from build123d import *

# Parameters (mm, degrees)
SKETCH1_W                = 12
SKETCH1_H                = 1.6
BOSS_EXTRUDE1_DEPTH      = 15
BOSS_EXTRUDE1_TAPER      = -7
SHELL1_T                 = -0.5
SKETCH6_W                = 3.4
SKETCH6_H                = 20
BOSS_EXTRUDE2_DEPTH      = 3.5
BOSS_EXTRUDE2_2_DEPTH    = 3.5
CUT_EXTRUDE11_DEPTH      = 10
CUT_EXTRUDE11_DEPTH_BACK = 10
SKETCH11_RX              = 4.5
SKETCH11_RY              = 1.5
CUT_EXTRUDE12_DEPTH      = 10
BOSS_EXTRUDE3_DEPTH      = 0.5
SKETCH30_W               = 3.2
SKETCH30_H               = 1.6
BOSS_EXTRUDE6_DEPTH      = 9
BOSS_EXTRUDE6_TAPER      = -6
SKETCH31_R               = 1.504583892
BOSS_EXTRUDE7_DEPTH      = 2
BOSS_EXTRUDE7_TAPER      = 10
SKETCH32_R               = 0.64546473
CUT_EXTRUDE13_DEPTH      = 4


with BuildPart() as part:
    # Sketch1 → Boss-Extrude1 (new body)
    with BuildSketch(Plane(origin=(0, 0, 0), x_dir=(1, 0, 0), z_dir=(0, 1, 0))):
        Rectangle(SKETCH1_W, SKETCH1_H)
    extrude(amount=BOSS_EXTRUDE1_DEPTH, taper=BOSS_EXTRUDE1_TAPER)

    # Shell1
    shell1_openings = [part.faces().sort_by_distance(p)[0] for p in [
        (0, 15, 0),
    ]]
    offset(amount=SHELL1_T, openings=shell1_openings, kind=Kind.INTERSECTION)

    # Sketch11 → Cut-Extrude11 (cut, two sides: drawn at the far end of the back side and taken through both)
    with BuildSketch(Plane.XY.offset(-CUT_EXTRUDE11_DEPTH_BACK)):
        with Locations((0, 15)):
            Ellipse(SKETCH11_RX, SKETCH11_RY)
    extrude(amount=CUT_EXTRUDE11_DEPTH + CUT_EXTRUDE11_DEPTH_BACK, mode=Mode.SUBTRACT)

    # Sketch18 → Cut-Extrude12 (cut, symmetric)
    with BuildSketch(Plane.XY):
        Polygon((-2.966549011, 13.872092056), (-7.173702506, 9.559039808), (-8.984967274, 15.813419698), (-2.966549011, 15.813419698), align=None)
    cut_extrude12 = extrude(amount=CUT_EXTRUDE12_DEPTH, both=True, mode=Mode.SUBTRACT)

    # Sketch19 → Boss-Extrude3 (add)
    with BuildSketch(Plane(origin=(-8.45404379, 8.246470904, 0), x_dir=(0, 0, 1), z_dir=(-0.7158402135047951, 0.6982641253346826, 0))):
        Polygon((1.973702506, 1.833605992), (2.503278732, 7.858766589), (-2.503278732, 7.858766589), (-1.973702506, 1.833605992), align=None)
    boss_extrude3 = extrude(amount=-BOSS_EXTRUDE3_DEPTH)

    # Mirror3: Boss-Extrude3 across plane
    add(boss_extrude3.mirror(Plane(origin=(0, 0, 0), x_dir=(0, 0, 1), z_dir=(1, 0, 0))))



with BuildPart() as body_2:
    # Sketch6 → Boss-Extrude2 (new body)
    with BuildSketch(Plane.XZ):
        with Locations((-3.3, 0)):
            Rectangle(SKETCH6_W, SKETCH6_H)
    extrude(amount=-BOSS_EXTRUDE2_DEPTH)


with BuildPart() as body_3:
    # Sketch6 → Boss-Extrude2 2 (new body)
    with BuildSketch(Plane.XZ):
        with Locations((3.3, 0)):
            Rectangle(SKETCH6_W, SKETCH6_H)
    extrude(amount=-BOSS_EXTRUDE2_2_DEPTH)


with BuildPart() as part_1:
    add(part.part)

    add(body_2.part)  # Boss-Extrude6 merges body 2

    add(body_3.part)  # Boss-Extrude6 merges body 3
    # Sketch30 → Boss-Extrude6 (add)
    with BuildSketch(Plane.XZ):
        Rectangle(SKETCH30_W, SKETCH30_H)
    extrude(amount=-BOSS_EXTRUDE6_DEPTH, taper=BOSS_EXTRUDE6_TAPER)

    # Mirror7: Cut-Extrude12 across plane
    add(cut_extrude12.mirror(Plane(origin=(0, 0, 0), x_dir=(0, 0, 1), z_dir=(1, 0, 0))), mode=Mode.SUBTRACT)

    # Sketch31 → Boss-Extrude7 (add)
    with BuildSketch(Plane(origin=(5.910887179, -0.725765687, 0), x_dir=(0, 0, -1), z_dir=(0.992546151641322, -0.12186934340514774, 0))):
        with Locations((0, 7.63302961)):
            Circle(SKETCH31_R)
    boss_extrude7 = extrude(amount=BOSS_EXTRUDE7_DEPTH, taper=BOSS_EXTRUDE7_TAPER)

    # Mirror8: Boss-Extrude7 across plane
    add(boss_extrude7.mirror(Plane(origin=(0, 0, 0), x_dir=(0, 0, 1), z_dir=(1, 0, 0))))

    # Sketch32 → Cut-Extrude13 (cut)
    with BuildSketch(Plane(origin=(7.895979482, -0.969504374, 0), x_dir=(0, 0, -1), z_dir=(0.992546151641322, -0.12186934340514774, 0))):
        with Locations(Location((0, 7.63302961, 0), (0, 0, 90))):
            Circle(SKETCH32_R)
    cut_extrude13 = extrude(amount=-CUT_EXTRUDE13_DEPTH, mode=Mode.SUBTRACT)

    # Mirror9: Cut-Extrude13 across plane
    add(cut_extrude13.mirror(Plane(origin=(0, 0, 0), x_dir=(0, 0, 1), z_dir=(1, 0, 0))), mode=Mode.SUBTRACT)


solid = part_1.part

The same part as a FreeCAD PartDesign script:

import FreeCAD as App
import Part
import Sketcher

V = App.Vector
Q = App.Units.Quantity


def faces_at(feature, points):
    """Names of the faces that lie closest to the given points."""
    faces = feature.Shape.Faces
    near = lambda p: min(range(len(faces)), key=lambda i: faces[i].distToShape(Part.Vertex(*p))[0])
    return sorted({f"Face{near(p) + 1}" for p in points})


def add_polygon(sketch, points):
    """Adds a closed chain of lines whose ends are joined by coincident constraints."""
    first, n = sketch.GeometryCount, len(points)
    for a, b in zip(points, points[1:] + points[:1]):
        sketch.addGeometry(Part.LineSegment(App.Vector(*a, 0), App.Vector(*b, 0)), False)
    for i in range(n):
        sketch.addConstraint(Sketcher.Constraint("Coincident", first + i, 2, first + (i + 1) % n, 1))

doc = App.newDocument("Part")
body = doc.addObject("PartDesign::Body", "Body")

# Sketch on XZ plane
sketch1 = body.newObject("Sketcher::SketchObject", "Sketch")
sketch1.AttachmentSupport = (doc.getObject("XZ_Plane"), [""])
sketch1.MapMode = "FlatFace"
add_polygon(sketch1, [(-6, -0.8), (-6, 0.8), (6, 0.8), (6, -0.8)])  # lines 0-3
sketch1.addConstraint(Sketcher.Constraint("Vertical", 0))
sketch1.addConstraint(Sketcher.Constraint("Horizontal", 1))
sketch1.addConstraint(Sketcher.Constraint("Vertical", 2))
sketch1.addConstraint(Sketcher.Constraint("Horizontal", 3))
sketch1.addConstraint(Sketcher.Constraint("Symmetric", 0, 2, 2, 2, -1, 1))
sketch1.addConstraint(Sketcher.Constraint("DistanceX", 1, 1, 1, 2, Q("12 mm")))
sketch1.addConstraint(Sketcher.Constraint("DistanceY", 0, 1, 0, 2, Q("1.6 mm")))
pad1 = body.newObject("PartDesign::Pad", "Pad")
pad1.Profile = sketch1
pad1.Length = 15
pad1.Reversed = True
pad1.TaperAngle = 7
doc.recompute()

thickness = body.newObject("PartDesign::Thickness", "Thickness")
thickness.Base = (pad1, faces_at(pad1, [(0, 15, 0)]))
thickness.Value = 0.5
thickness.Reversed = True
thickness.Join = "Intersection"

# Sketch on XY plane
sketch2 = body.newObject("Sketcher::SketchObject", "Sketch001")
sketch2.AttachmentSupport = (doc.getObject("XY_Plane"), [""])
sketch2.MapMode = "FlatFace"
sketch2.addGeometry(Part.Ellipse(V(4.5, 15, 0), V(0, 16.5, 0), V(0, 15, 0)), False)
sketch2.addConstraint(Sketcher.Constraint("Block", 0))
pocket1 = body.newObject("PartDesign::Pocket", "Pocket")
pocket1.Profile = sketch2
pocket1.Type = "ThroughAll"
pocket1.Midplane = True

# Sketch on XY plane
sketch3 = body.newObject("Sketcher::SketchObject", "Sketch002")
sketch3.AttachmentSupport = (doc.getObject("XY_Plane"), [""])
sketch3.MapMode = "FlatFace"
add_polygon(sketch3, [(-7.2, 9.6), (-3, 13.9), (-3, 15.8), (-9, 15.8)])  # lines 0-3
sketch3.addConstraint(Sketcher.Constraint("Vertical", 1))
sketch3.addConstraint(Sketcher.Constraint("Horizontal", 2))
sketch3.addConstraint(Sketcher.Constraint("DistanceX", 2, 2, 2, 1, Q("6.018418 mm")))
sketch3.addConstraint(Sketcher.Constraint("Distance", 0, Q("6.025161 mm")))
sketch3.addConstraint(Sketcher.Constraint("Distance", 3, Q("6.511371 mm")))
sketch3.addConstraint(Sketcher.Constraint("DistanceY", 1, 1, 1, 2, Q("1.941328 mm")))
sketch3.addConstraint(Sketcher.Constraint("DistanceX", 0, 2, -1, 1, Q("2.966549 mm")))
sketch3.addConstraint(Sketcher.Constraint("DistanceY", -1, 1, 1, 2, Q("15.81342 mm")))
pocket2 = body.newObject("PartDesign::Pocket", "Pocket001")
pocket2.Profile = sketch3
pocket2.Length = 20
pocket2.Midplane = True

# Sketch on an angled plane
sketch4 = body.newObject("Sketcher::SketchObject", "Sketch003")
sketch4.Placement = App.Placement(V(-8.454044, 8.246471, 0), App.Rotation(V(0, 0, 1), V(0.698264125, 0.715840214, 0), V(-0.715840214, 0.698264125, 0), "ZXY"))
add_polygon(sketch4, [(2, 1.8), (2.5, 7.9), (-2.5, 7.9), (-2, 1.8)])  # lines 0-3
sketch4.addConstraint(Sketcher.Constraint("Horizontal", 1))
sketch4.addConstraint(Sketcher.Constraint("Horizontal", 3))
sketch4.addConstraint(Sketcher.Constraint("Equal", 0, 2))
sketch4.addConstraint(Sketcher.Constraint("Distance", 0, Q("6.048389 mm")))
sketch4.addConstraint(Sketcher.Constraint("DistanceX", 1, 2, 1, 1, Q("5.006557 mm")))
sketch4.addConstraint(Sketcher.Constraint("DistanceX", 3, 1, 3, 2, Q("3.947405 mm")))
sketch4.addConstraint(Sketcher.Constraint("DistanceX", -1, 1, 0, 2, Q("2.503279 mm")))
sketch4.addConstraint(Sketcher.Constraint("DistanceY", -1, 1, 0, 2, Q("7.858767 mm")))
pad2 = body.newObject("PartDesign::Pad", "Pad001")
pad2.Profile = sketch4
pad2.Length = 0.5
pad2.Reversed = True
doc.recompute()

mirrored = body.newObject("PartDesign::Mirrored", "Mirrored")
mirrored.Originals = [pad2]
mirrored.MirrorPlane = (doc.getObject("YZ_Plane"), [""])
body.Tip = mirrored
body2 = doc.addObject("PartDesign::Body", "Body001")

# Sketch on XZ plane
sketch5 = body2.newObject("Sketcher::SketchObject", "Sketch004")
sketch5.AttachmentSupport = (doc.getObject("XZ_Plane001"), [""])
sketch5.MapMode = "FlatFace"
add_polygon(sketch5, [(-5, 10), (-5, -10), (-1.6, -10), (-1.6, 10)])  # lines 0-3
sketch5.addConstraint(Sketcher.Constraint("Vertical", 0))
sketch5.addConstraint(Sketcher.Constraint("Horizontal", 1))
sketch5.addConstraint(Sketcher.Constraint("Vertical", 2))
sketch5.addConstraint(Sketcher.Constraint("Horizontal", 3))
sketch5.addConstraint(Sketcher.Constraint("DistanceY", 0, 2, 0, 1, Q("20 mm")))
sketch5.addConstraint(Sketcher.Constraint("DistanceX", 1, 1, 1, 2, Q("3.4 mm")))
sketch5.addConstraint(Sketcher.Constraint("DistanceX", 0, 2, -1, 1, Q("5 mm")))
sketch5.addConstraint(Sketcher.Constraint("DistanceY", 0, 2, -1, 1, Q("10 mm")))
pad3 = body2.newObject("PartDesign::Pad", "Pad002")
pad3.Profile = sketch5
pad3.Length = 3.5
pad3.Reversed = True
body3 = doc.addObject("PartDesign::Body", "Body002")

# Sketch on XZ plane
sketch6 = body3.newObject("Sketcher::SketchObject", "Sketch005")
sketch6.AttachmentSupport = (doc.getObject("XZ_Plane002"), [""])
sketch6.MapMode = "FlatFace"
add_polygon(sketch6, [(1.6, 10), (1.6, -10), (5, -10), (5, 10)])  # lines 0-3
sketch6.addConstraint(Sketcher.Constraint("Vertical", 0))
sketch6.addConstraint(Sketcher.Constraint("Horizontal", 1))
sketch6.addConstraint(Sketcher.Constraint("Vertical", 2))
sketch6.addConstraint(Sketcher.Constraint("Horizontal", 3))
sketch6.addConstraint(Sketcher.Constraint("DistanceY", 0, 2, 0, 1, Q("20 mm")))
sketch6.addConstraint(Sketcher.Constraint("DistanceX", 1, 1, 1, 2, Q("3.4 mm")))
sketch6.addConstraint(Sketcher.Constraint("DistanceY", 0, 2, -1, 1, Q("10 mm")))
sketch6.addConstraint(Sketcher.Constraint("DistanceX", -1, 1, 1, 2, Q("5 mm")))
pad4 = body3.newObject("PartDesign::Pad", "Pad003")
pad4.Profile = sketch6
pad4.Length = 3.5
pad4.Reversed = True
doc.recompute()

boolean = body.newObject("PartDesign::Boolean", "Boolean")
boolean.Type = "Fuse"
boolean.addObjects([body2])
doc.recompute()

boolean2 = body.newObject("PartDesign::Boolean", "Boolean001")
boolean2.Type = "Fuse"
boolean2.addObjects([body3])

# Sketch on XZ plane
sketch7 = body.newObject("Sketcher::SketchObject", "Sketch006")
sketch7.AttachmentSupport = (doc.getObject("XZ_Plane"), [""])
sketch7.MapMode = "FlatFace"
add_polygon(sketch7, [(-1.6, 0.8), (-1.6, -0.8), (1.6, -0.8), (1.6, 0.8)])  # lines 0-3
sketch7.addConstraint(Sketcher.Constraint("Vertical", 0))
sketch7.addConstraint(Sketcher.Constraint("Horizontal", 1))
sketch7.addConstraint(Sketcher.Constraint("Vertical", 2))
sketch7.addConstraint(Sketcher.Constraint("Horizontal", 3))
sketch7.addConstraint(Sketcher.Constraint("Symmetric", 0, 2, 2, 2, -1, 1))
sketch7.addConstraint(Sketcher.Constraint("DistanceX", 1, 1, 1, 2, Q("3.2 mm")))
sketch7.addConstraint(Sketcher.Constraint("DistanceY", 0, 2, 0, 1, Q("1.6 mm")))
pad5 = body.newObject("PartDesign::Pad", "Pad004")
pad5.Profile = sketch7
pad5.Length = 9
pad5.Reversed = True
pad5.TaperAngle = 6
doc.recompute()

mirrored2 = body.newObject("PartDesign::Mirrored", "Mirrored001")
mirrored2.Originals = [pocket2]
mirrored2.MirrorPlane = (doc.getObject("YZ_Plane"), [""])
body.Tip = mirrored2

# Sketch on an angled plane
sketch8 = body.newObject("Sketcher::SketchObject", "Sketch007")
sketch8.Placement = App.Placement(V(5.910887, -0.725766, 0), App.Rotation(V(0, 0, -1), V(0.121869343, 0.992546152, 0), V(0.992546152, -0.121869343, 0), "ZXY"))
sketch8.addGeometry(Part.Circle(V(0, 7.6, 0), V(0, 0, 1), 1.5), False)
sketch8.addConstraint(Sketcher.Constraint("PointOnObject", 0, 3, -2))
sketch8.addConstraint(Sketcher.Constraint("Diameter", 0, Q("3.009168 mm")))
sketch8.addConstraint(Sketcher.Constraint("DistanceY", -1, 1, 0, 3, Q("7.63303 mm")))
pad6 = body.newObject("PartDesign::Pad", "Pad005")
pad6.Profile = sketch8
pad6.Length = 2
pad6.TaperAngle = -10
doc.recompute()

mirrored3 = body.newObject("PartDesign::Mirrored", "Mirrored002")
mirrored3.Originals = [pad6]
mirrored3.MirrorPlane = (doc.getObject("YZ_Plane"), [""])
body.Tip = mirrored3

# Sketch on an angled plane
sketch9 = body.newObject("Sketcher::SketchObject", "Sketch008")
sketch9.Placement = App.Placement(V(7.895979, -0.969504, 0), App.Rotation(V(0, 0, -1), V(0.121869343, 0.992546152, 0), V(0.992546152, -0.121869343, 0), "ZXY"))
sketch9.addGeometry(Part.Circle(V(0, 7.6, 0), V(0, 0, 1), 0.6), False)
sketch9.addConstraint(Sketcher.Constraint("PointOnObject", 0, 3, -2))
sketch9.addConstraint(Sketcher.Constraint("Diameter", 0, Q("1.290929 mm")))
sketch9.addConstraint(Sketcher.Constraint("DistanceY", -1, 1, 0, 3, Q("7.63303 mm")))
pocket3 = body.newObject("PartDesign::Pocket", "Pocket002")
pocket3.Profile = sketch9
pocket3.Length = 4
doc.recompute()

mirrored4 = body.newObject("PartDesign::Mirrored", "Mirrored003")
mirrored4.Originals = [pocket3]
mirrored4.MirrorPlane = (doc.getObject("YZ_Plane"), [""])
body.Tip = mirrored4

doc.recompute()
